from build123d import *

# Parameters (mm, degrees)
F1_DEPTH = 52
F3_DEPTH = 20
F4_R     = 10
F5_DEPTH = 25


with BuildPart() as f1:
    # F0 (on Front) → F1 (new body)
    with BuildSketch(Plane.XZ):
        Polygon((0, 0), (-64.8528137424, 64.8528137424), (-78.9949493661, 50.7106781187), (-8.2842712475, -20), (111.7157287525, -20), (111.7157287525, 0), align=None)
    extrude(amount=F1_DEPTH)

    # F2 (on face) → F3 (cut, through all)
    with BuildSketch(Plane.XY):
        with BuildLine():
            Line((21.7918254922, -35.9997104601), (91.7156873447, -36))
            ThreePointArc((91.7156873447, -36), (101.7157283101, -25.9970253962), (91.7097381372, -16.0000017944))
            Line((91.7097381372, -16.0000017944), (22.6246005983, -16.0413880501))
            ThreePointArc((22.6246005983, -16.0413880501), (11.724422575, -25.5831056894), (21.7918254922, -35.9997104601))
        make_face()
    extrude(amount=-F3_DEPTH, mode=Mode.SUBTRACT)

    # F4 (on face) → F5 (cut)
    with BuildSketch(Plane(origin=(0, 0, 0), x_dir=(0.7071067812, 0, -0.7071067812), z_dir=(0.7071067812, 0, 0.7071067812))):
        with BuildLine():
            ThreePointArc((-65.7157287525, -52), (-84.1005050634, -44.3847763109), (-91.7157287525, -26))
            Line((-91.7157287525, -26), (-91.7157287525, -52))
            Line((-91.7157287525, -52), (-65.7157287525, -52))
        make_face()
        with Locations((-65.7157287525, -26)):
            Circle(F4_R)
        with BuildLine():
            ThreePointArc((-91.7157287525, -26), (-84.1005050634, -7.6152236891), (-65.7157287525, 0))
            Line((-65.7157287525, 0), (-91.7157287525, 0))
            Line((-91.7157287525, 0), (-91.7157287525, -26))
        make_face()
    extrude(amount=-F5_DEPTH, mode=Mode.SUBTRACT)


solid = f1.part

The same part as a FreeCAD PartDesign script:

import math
import FreeCAD as App
import Part
import Sketcher

V = App.Vector
Q = App.Units.Quantity

doc = App.newDocument("Part")
body = doc.addObject("PartDesign::Body", "Body")

sketch1 = body.newObject("Sketcher::SketchObject", "Sketch")
sketch1.AttachmentSupport = (doc.getObject("XZ_Plane"), [""])
sketch1.MapMode = "FlatFace"
sketch1.addGeometry(Part.LineSegment(V(0, 0, 0), V(-64.852814, 64.852814, 0)), False)
sketch1.addGeometry(Part.LineSegment(V(-64.852814, 64.852814, 0), V(-78.994949, 50.710678, 0)), False)
sketch1.addGeometry(Part.LineSegment(V(-78.994949, 50.710678, 0), V(-8.284271, -20, 0)), False)
sketch1.addGeometry(Part.LineSegment(V(-8.284271, -20, 0), V(111.715729, -20, 0)), False)
sketch1.addGeometry(Part.LineSegment(V(111.715729, -20, 0), V(111.715729, 0, 0)), False)
sketch1.addGeometry(Part.LineSegment(V(111.715729, 0, 0), V(0, 0, 0)), False)
sketch1.addConstraint(Sketcher.Constraint("Coincident", 0, 2, 1, 1))
sketch1.addConstraint(Sketcher.Constraint("Coincident", 1, 2, 2, 1))
sketch1.addConstraint(Sketcher.Constraint("Coincident", 2, 2, 3, 1))
sketch1.addConstraint(Sketcher.Constraint("Coincident", 3, 2, 4, 1))
sketch1.addConstraint(Sketcher.Constraint("Coincident", 4, 2, 5, 1))
sketch1.addConstraint(Sketcher.Constraint("Coincident", 5, 2, 0, 1))
sketch1.addConstraint(Sketcher.Constraint("Horizontal", 3))
sketch1.addConstraint(Sketcher.Constraint("Vertical", 4))
sketch1.addConstraint(Sketcher.Constraint("Horizontal", 5))
sketch1.addConstraint(Sketcher.Constraint("Coincident", 5, 2, -1, 1))
sketch1.addConstraint(Sketcher.Constraint("Perpendicular", 0, 1))
sketch1.addConstraint(Sketcher.Constraint("Perpendicular", 1, 2))
sketch1.addConstraint(Sketcher.Constraint("DistanceX", 3, 1, 3, 2, 120.0))
sketch1.addConstraint(Sketcher.Constraint("DistanceY", 4, 1, 4, 2, 20.0))
sketch1.addConstraint(Sketcher.Constraint("Angle", 0, Q("135 deg")))
sketch1.addConstraint(Sketcher.Constraint("Distance", 1, 20.0))
sketch1.addConstraint(Sketcher.Constraint("Distance", 2, 100.0))
pad1 = body.newObject("PartDesign::Pad", "Pad")
pad1.Profile = sketch1
pad1.Length = 52

sketch2 = body.newObject("Sketcher::SketchObject", "Sketch001")
sketch2.AttachmentSupport = (doc.getObject("XY_Plane"), [""])
sketch2.MapMode = "FlatFace"
sketch2.addGeometry(Part.LineSegment(V(21.791825, -35.99971, 0), V(91.715687, -36, 0)), False)
sketch2.addGeometry(Part.ArcOfCircle(Part.Circle(V(91.715729, -26, 0), V(0, 0, 1), 10), math.radians(-90.000237), math.radians(90.034324)), False)
sketch2.addGeometry(Part.LineSegment(V(91.709738, -16.000002, 0), V(22.624601, -16.041388, 0)), False)
sketch2.addGeometry(Part.ArcOfCircle(Part.Circle(V(21.715729, -26, 0), V(0, 0, 1), 10), math.radians(84.785352), math.radians(270.436006)), False)
sketch2.addConstraint(Sketcher.Constraint("Tangent", 0, 2, 1, 1))
sketch2.addConstraint(Sketcher.Constraint("Tangent", 1, 2, 2, 1))
sketch2.addConstraint(Sketcher.Constraint("Coincident", 2, 2, 3, 1))
sketch2.addConstraint(Sketcher.Constraint("Coincident", 3, 2, 0, 1))
sketch2.addConstraint(Sketcher.Constraint("Equal", 1, 3))
sketch2.addConstraint(Sketcher.Constraint("Horizontal", 1, 3, 3, 3))
sketch2.addConstraint(Sketcher.Constraint("Radius", 1, 10.0))
sketch2.addConstraint(Sketcher.Constraint("DistanceY", 1, 3, -1, 1, 26.0))
sketch2.addConstraint(Sketcher.Constraint("DistanceX", 3, 3, 1, 3, 70.0))
sketch2.addConstraint(Sketcher.Constraint("DistanceX", -1, 1, 2, 2, 22.624601))
sketch2.addConstraint(Sketcher.Constraint("Distance", 0, 69.923862))
sketch2.addConstraint(Sketcher.Constraint("Distance", 2, 69.08515))
pocket1 = body.newObject("PartDesign::Pocket", "Pocket")
pocket1.Profile = sketch2
pocket1.Type = "ThroughAll"

sketch3 = body.newObject("Sketcher::SketchObject", "Sketch002")
sketch3.Placement = App.Placement(V(0, 0, 0), App.Rotation(V(0.707106781, 0, -0.707106781), V(0, 0.999999999, 0), V(0.707106781, 0, 0.707106781), "ZXY"))
sketch3.addGeometry(Part.ArcOfCircle(Part.Circle(V(-65.715729, -26, 0), V(0, 0, 1), 26), math.radians(180), math.radians(270)), False)
sketch3.addGeometry(Part.LineSegment(V(-91.715729, -26, 0), V(-91.715729, -52, 0)), False)
sketch3.addGeometry(Part.LineSegment(V(-91.715729, -52, 0), V(-65.715729, -52, 0)), False)
sketch3.addGeometry(Part.Circle(V(-65.715729, -26, 0), V(0, 0, 1), 10), False)
sketch3.addGeometry(Part.ArcOfCircle(Part.Circle(V(-65.715729, -26, 0), V(0, 0, 1), 26), math.radians(90), math.radians(180)), False)
sketch3.addGeometry(Part.LineSegment(V(-65.715729, 0, 0), V(-91.715729, 0, 0)), False)
sketch3.addGeometry(Part.LineSegment(V(-91.715729, 0, 0), V(-91.715729, -26, 0)), False)
sketch3.addConstraint(Sketcher.Constraint("Tangent", 0, 1, 1, 1))
sketch3.addConstraint(Sketcher.Constraint("Coincident", 1, 2, 2, 1))
sketch3.addConstraint(Sketcher.Constraint("Tangent", 2, 2, 0, 2))
sketch3.addConstraint(Sketcher.Constraint("Tangent", 4, 1, 5, 1))
sketch3.addConstraint(Sketcher.Constraint("Coincident", 5, 2, 6, 1))
sketch3.addConstraint(Sketcher.Constraint("Tangent", 6, 2, 4, 2))
sketch3.addConstraint(Sketcher.Constraint("Vertical", 1))
sketch3.addConstraint(Sketcher.Constraint("Horizontal", 2))
sketch3.addConstraint(Sketcher.Constraint("Horizontal", 5))
sketch3.addConstraint(Sketcher.Constraint("Vertical", 6))
sketch3.addConstraint(Sketcher.Constraint("Coincident", 3, 3, 0, 3))
sketch3.addConstraint(Sketcher.Constraint("Coincident", 4, 3, 0, 3))
sketch3.addConstraint(Sketcher.Constraint("Equal", 0, 4))
sketch3.addConstraint(Sketcher.Constraint("PointOnObject", 4, 1, -1))
sketch3.addConstraint(Sketcher.Constraint("Diameter", 3, 20.0))
sketch3.addConstraint(Sketcher.Constraint("Radius", 0, 26.0))
sketch3.addConstraint(Sketcher.Constraint("DistanceX", 0, 3, -1, 1, 65.715729))
pocket2 = body.newObject("PartDesign::Pocket", "Pocket001")
pocket2.Profile = sketch3
pocket2.Length = 25

doc.recompute()
